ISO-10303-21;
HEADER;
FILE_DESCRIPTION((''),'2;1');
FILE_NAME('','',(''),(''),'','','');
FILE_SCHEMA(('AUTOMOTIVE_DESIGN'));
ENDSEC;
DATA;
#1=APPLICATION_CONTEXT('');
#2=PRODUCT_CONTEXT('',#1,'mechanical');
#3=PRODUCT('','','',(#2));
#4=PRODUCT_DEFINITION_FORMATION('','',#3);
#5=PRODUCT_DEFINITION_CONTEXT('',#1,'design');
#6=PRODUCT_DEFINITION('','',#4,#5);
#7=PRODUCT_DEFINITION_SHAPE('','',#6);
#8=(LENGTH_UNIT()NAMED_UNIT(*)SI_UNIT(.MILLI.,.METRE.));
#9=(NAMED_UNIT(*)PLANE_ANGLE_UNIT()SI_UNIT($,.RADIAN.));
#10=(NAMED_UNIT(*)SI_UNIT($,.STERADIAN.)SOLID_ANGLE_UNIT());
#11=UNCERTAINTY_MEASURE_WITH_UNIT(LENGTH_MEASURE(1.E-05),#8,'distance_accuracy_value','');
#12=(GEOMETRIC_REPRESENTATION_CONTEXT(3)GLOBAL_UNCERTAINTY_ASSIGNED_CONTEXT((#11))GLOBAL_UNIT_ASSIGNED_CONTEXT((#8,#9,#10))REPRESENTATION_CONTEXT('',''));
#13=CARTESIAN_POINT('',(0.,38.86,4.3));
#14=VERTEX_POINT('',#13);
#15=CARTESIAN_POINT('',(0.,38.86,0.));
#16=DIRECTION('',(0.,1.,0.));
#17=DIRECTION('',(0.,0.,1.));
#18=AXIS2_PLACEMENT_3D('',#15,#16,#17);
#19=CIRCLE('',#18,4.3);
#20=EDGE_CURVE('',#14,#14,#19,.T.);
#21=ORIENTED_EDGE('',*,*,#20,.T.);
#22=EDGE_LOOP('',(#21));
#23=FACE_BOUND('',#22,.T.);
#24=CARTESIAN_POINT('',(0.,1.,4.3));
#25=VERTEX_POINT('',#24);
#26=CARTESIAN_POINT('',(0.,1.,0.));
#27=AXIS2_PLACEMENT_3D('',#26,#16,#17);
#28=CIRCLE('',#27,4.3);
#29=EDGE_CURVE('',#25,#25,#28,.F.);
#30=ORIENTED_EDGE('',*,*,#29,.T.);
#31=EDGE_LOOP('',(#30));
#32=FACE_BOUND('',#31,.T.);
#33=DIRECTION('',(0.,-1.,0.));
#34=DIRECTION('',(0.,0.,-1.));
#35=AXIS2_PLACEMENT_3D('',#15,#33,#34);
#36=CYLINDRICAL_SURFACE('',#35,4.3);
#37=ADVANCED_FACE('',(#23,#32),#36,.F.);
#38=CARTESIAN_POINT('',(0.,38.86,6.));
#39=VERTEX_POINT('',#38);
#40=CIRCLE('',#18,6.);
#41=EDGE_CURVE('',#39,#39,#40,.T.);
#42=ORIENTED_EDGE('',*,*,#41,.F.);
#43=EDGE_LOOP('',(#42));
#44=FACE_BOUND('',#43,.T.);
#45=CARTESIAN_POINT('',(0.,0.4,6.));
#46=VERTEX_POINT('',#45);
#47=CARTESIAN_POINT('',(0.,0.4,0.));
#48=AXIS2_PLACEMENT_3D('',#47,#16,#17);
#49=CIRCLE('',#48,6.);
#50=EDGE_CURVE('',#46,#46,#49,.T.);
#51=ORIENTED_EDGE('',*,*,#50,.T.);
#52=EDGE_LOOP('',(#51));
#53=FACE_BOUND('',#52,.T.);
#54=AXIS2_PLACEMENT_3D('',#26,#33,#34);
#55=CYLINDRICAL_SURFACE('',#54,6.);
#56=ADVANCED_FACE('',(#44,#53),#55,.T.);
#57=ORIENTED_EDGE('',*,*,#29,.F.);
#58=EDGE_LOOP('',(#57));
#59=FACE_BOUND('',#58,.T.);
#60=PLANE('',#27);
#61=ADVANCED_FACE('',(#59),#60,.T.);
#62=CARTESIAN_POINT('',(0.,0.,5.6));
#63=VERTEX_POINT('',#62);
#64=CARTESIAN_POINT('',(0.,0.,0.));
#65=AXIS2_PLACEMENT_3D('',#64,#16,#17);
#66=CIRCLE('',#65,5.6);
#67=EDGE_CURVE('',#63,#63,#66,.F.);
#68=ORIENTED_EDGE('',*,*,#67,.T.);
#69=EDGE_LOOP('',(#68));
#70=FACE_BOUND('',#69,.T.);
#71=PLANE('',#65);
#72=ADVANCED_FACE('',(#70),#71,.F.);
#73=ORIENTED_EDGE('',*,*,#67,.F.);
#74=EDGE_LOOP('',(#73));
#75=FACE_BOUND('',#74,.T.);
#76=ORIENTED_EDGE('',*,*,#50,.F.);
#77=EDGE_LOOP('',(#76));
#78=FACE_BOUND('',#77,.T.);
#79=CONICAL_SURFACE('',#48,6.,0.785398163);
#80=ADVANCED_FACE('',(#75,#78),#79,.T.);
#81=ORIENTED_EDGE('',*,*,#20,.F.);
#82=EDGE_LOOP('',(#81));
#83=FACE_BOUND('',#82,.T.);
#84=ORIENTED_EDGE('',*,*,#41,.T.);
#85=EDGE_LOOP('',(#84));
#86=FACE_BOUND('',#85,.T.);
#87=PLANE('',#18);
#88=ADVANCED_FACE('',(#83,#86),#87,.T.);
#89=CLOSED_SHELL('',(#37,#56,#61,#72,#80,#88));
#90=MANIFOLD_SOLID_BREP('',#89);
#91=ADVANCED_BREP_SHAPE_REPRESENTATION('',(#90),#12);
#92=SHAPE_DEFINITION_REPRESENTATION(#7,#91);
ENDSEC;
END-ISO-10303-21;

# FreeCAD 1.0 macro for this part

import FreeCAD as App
import Part
import Sketcher

V = App.Vector


def edges_at(feature, points):
    """Names of the edges that pass closest to the given points."""
    edges = feature.Shape.Edges
    near = lambda p: min(range(len(edges)), key=lambda i: edges[i].distToShape(Part.Vertex(*p))[0])
    return sorted({f"Edge{near(p) + 1}" for p in points})

doc = App.newDocument("Part")
params = doc.addObject("Spreadsheet::Sheet", "Params")
for row, (alias, value) in enumerate([
    ("sketch1_diameter", "12 mm"),
    ("pad1_length", "1 mm"),
    ("sketch2_diameter", "12 mm"),
    ("sketch2_diameter2", "8.6 mm"),
    ("pad2_length", "37.86 mm"),
    ("chamfer_size", "0.4 mm"),
], start=1):
    params.set(f"A{row}", alias)
    params.set(f"B{row}", "=" + value)
    params.setAlias(f"B{row}", alias)

body = doc.addObject("PartDesign::Body", "Body")

sketch1 = body.newObject("Sketcher::SketchObject", "Sketch")
sketch1.AttachmentSupport = (doc.getObject("XZ_Plane"), [""])
sketch1.MapMode = "FlatFace"
sketch1.addGeometry(Part.Circle(V(0, 0, 0), V(0, 0, 1), 6), False)
sketch1.addConstraint(Sketcher.Constraint("Coincident", 0, 3, -1, 1))
sketch1.addConstraint(Sketcher.Constraint("Diameter", 0, 12.0))
sketch1.setExpression("Constraints[1]", "Params.sketch1_diameter")
pad1 = body.newObject("PartDesign::Pad", "Pad")
pad1.Profile = sketch1
pad1.setExpression("Length", "Params.pad1_length")
pad1.Reversed = True

sketch2 = body.newObject("Sketcher::SketchObject", "Sketch001")
sketch2.AttachmentSupport = (doc.getObject("XZ_Plane"), [""])
sketch2.MapMode = "FlatFace"
sketch2.AttachmentOffset = App.Placement(V(0, 0, -1), App.Rotation())
sketch2.addGeometry(Part.Circle(V(0, 0, 0), V(0, 0, 1), 6), False)
sketch2.addGeometry(Part.Circle(V(0, 0, 0), V(0, 0, 1), 4.3), False)
sketch2.addConstraint(Sketcher.Constraint("Coincident", 0, 3, -1, 1))
sketch2.addConstraint(Sketcher.Constraint("Coincident", 1, 3, -1, 1))
sketch2.addConstraint(Sketcher.Constraint("Diameter", 0, 12.0))
sketch2.addConstraint(Sketcher.Constraint("Diameter", 1, 8.6))
sketch2.setExpression("Constraints[2]", "Params.sketch2_diameter")
sketch2.setExpression("Constraints[3]", "Params.sketch2_diameter2")
pad2 = body.newObject("PartDesign::Pad", "Pad001")
pad2.Profile = sketch2
pad2.setExpression("Length", "Params.pad2_length")
pad2.Reversed = True
doc.recompute()

chamfer = body.newObject("PartDesign::Chamfer", "Chamfer")
chamfer.Base = (pad2, edges_at(pad2, [(-6, 0, 0)]))
chamfer.setExpression("Size", "Params.chamfer_size")

doc.recompute()
